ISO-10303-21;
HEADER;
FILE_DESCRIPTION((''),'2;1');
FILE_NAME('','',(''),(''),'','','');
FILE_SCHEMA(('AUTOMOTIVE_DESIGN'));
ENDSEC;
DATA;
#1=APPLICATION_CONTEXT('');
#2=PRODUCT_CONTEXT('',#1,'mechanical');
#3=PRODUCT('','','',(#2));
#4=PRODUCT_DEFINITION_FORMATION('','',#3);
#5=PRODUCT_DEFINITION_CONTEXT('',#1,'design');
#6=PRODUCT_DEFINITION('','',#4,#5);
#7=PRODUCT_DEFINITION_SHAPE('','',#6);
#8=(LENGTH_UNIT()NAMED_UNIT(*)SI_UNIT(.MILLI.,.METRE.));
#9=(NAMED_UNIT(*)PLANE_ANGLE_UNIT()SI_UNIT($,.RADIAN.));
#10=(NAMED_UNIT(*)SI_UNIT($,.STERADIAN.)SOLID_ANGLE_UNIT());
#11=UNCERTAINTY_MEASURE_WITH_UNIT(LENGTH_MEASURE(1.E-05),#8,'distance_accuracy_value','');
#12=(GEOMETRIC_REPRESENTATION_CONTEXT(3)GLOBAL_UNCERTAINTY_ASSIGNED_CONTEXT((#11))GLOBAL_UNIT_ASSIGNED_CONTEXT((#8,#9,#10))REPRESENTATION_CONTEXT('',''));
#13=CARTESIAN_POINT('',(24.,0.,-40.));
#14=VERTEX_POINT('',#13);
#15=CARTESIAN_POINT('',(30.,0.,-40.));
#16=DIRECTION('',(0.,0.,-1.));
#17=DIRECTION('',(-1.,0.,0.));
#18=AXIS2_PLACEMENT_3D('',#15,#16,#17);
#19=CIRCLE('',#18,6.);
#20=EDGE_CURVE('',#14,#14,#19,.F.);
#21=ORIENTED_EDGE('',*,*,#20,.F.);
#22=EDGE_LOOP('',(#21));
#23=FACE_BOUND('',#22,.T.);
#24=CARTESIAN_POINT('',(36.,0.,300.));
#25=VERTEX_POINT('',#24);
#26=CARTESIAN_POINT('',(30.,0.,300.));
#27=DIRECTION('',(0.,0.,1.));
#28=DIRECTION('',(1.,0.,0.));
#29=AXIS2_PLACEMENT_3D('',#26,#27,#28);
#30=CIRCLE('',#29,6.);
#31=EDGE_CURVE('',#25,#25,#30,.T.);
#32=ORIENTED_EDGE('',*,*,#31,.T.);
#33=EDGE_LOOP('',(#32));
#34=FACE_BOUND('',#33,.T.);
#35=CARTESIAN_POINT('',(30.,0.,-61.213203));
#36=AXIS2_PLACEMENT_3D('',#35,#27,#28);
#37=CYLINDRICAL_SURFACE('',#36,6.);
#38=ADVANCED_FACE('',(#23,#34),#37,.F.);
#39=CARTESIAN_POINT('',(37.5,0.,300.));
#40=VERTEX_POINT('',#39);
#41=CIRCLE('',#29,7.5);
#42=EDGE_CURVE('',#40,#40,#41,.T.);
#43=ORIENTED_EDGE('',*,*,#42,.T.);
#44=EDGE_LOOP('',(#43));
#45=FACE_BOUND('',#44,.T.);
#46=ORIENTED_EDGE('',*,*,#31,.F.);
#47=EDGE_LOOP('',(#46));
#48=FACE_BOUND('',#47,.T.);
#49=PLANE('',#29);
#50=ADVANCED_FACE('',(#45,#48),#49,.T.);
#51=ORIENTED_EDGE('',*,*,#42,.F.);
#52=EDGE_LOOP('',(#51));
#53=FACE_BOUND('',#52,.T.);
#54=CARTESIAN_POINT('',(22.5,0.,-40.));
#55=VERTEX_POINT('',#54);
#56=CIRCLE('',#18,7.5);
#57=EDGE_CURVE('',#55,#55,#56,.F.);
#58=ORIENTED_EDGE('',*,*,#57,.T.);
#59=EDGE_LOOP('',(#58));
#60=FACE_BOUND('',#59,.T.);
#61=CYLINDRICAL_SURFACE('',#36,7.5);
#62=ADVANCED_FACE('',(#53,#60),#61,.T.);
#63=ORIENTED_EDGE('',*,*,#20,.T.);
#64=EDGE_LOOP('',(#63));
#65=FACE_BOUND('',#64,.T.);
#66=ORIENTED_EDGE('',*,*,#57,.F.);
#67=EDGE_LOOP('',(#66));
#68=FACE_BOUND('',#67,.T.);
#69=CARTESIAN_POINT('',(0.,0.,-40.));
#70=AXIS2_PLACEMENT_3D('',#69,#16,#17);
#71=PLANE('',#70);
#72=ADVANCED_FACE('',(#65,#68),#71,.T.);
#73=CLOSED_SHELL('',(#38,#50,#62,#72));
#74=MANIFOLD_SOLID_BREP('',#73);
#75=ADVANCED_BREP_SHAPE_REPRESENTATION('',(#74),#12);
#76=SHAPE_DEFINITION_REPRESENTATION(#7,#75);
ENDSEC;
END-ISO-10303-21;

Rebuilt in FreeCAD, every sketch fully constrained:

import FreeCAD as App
import Part
import Sketcher
Q = App.Units.Quantity

doc = App.newDocument("Part")
body = doc.addObject("PartDesign::Body", "Body")

sketch1 = body.newObject("Sketcher::SketchObject", "Sketch")
sketch1.AttachmentSupport = (doc.getObject("XY_Plane"), [""])
sketch1.MapMode = "FlatFace"
sketch1.addGeometry([
    Part.Circle(App.Vector(30, 0, 0), App.Vector(0, 0, 1), 8),
    Part.Circle(App.Vector(30, 0, 0), App.Vector(0, 0, 1), 6),
], False)
sketch1.addConstraint([
    Sketcher.Constraint("Coincident", 1, 3, 0, 3),
    Sketcher.Constraint("PointOnObject", 0, 3, -1),
    Sketcher.Constraint("Diameter", 0, Q("15 mm")),
    Sketcher.Constraint("Diameter", 1, Q("12 mm")),
    Sketcher.Constraint("DistanceX", -1, 1, 0, 3, Q("30 mm")),
])
pad1 = body.newObject("PartDesign::Pad", "Pad")
pad1.Profile = sketch1
pad1.Type = "TwoLengths"
pad1.Length = 300
pad1.Length2 = 40

doc.recompute()
